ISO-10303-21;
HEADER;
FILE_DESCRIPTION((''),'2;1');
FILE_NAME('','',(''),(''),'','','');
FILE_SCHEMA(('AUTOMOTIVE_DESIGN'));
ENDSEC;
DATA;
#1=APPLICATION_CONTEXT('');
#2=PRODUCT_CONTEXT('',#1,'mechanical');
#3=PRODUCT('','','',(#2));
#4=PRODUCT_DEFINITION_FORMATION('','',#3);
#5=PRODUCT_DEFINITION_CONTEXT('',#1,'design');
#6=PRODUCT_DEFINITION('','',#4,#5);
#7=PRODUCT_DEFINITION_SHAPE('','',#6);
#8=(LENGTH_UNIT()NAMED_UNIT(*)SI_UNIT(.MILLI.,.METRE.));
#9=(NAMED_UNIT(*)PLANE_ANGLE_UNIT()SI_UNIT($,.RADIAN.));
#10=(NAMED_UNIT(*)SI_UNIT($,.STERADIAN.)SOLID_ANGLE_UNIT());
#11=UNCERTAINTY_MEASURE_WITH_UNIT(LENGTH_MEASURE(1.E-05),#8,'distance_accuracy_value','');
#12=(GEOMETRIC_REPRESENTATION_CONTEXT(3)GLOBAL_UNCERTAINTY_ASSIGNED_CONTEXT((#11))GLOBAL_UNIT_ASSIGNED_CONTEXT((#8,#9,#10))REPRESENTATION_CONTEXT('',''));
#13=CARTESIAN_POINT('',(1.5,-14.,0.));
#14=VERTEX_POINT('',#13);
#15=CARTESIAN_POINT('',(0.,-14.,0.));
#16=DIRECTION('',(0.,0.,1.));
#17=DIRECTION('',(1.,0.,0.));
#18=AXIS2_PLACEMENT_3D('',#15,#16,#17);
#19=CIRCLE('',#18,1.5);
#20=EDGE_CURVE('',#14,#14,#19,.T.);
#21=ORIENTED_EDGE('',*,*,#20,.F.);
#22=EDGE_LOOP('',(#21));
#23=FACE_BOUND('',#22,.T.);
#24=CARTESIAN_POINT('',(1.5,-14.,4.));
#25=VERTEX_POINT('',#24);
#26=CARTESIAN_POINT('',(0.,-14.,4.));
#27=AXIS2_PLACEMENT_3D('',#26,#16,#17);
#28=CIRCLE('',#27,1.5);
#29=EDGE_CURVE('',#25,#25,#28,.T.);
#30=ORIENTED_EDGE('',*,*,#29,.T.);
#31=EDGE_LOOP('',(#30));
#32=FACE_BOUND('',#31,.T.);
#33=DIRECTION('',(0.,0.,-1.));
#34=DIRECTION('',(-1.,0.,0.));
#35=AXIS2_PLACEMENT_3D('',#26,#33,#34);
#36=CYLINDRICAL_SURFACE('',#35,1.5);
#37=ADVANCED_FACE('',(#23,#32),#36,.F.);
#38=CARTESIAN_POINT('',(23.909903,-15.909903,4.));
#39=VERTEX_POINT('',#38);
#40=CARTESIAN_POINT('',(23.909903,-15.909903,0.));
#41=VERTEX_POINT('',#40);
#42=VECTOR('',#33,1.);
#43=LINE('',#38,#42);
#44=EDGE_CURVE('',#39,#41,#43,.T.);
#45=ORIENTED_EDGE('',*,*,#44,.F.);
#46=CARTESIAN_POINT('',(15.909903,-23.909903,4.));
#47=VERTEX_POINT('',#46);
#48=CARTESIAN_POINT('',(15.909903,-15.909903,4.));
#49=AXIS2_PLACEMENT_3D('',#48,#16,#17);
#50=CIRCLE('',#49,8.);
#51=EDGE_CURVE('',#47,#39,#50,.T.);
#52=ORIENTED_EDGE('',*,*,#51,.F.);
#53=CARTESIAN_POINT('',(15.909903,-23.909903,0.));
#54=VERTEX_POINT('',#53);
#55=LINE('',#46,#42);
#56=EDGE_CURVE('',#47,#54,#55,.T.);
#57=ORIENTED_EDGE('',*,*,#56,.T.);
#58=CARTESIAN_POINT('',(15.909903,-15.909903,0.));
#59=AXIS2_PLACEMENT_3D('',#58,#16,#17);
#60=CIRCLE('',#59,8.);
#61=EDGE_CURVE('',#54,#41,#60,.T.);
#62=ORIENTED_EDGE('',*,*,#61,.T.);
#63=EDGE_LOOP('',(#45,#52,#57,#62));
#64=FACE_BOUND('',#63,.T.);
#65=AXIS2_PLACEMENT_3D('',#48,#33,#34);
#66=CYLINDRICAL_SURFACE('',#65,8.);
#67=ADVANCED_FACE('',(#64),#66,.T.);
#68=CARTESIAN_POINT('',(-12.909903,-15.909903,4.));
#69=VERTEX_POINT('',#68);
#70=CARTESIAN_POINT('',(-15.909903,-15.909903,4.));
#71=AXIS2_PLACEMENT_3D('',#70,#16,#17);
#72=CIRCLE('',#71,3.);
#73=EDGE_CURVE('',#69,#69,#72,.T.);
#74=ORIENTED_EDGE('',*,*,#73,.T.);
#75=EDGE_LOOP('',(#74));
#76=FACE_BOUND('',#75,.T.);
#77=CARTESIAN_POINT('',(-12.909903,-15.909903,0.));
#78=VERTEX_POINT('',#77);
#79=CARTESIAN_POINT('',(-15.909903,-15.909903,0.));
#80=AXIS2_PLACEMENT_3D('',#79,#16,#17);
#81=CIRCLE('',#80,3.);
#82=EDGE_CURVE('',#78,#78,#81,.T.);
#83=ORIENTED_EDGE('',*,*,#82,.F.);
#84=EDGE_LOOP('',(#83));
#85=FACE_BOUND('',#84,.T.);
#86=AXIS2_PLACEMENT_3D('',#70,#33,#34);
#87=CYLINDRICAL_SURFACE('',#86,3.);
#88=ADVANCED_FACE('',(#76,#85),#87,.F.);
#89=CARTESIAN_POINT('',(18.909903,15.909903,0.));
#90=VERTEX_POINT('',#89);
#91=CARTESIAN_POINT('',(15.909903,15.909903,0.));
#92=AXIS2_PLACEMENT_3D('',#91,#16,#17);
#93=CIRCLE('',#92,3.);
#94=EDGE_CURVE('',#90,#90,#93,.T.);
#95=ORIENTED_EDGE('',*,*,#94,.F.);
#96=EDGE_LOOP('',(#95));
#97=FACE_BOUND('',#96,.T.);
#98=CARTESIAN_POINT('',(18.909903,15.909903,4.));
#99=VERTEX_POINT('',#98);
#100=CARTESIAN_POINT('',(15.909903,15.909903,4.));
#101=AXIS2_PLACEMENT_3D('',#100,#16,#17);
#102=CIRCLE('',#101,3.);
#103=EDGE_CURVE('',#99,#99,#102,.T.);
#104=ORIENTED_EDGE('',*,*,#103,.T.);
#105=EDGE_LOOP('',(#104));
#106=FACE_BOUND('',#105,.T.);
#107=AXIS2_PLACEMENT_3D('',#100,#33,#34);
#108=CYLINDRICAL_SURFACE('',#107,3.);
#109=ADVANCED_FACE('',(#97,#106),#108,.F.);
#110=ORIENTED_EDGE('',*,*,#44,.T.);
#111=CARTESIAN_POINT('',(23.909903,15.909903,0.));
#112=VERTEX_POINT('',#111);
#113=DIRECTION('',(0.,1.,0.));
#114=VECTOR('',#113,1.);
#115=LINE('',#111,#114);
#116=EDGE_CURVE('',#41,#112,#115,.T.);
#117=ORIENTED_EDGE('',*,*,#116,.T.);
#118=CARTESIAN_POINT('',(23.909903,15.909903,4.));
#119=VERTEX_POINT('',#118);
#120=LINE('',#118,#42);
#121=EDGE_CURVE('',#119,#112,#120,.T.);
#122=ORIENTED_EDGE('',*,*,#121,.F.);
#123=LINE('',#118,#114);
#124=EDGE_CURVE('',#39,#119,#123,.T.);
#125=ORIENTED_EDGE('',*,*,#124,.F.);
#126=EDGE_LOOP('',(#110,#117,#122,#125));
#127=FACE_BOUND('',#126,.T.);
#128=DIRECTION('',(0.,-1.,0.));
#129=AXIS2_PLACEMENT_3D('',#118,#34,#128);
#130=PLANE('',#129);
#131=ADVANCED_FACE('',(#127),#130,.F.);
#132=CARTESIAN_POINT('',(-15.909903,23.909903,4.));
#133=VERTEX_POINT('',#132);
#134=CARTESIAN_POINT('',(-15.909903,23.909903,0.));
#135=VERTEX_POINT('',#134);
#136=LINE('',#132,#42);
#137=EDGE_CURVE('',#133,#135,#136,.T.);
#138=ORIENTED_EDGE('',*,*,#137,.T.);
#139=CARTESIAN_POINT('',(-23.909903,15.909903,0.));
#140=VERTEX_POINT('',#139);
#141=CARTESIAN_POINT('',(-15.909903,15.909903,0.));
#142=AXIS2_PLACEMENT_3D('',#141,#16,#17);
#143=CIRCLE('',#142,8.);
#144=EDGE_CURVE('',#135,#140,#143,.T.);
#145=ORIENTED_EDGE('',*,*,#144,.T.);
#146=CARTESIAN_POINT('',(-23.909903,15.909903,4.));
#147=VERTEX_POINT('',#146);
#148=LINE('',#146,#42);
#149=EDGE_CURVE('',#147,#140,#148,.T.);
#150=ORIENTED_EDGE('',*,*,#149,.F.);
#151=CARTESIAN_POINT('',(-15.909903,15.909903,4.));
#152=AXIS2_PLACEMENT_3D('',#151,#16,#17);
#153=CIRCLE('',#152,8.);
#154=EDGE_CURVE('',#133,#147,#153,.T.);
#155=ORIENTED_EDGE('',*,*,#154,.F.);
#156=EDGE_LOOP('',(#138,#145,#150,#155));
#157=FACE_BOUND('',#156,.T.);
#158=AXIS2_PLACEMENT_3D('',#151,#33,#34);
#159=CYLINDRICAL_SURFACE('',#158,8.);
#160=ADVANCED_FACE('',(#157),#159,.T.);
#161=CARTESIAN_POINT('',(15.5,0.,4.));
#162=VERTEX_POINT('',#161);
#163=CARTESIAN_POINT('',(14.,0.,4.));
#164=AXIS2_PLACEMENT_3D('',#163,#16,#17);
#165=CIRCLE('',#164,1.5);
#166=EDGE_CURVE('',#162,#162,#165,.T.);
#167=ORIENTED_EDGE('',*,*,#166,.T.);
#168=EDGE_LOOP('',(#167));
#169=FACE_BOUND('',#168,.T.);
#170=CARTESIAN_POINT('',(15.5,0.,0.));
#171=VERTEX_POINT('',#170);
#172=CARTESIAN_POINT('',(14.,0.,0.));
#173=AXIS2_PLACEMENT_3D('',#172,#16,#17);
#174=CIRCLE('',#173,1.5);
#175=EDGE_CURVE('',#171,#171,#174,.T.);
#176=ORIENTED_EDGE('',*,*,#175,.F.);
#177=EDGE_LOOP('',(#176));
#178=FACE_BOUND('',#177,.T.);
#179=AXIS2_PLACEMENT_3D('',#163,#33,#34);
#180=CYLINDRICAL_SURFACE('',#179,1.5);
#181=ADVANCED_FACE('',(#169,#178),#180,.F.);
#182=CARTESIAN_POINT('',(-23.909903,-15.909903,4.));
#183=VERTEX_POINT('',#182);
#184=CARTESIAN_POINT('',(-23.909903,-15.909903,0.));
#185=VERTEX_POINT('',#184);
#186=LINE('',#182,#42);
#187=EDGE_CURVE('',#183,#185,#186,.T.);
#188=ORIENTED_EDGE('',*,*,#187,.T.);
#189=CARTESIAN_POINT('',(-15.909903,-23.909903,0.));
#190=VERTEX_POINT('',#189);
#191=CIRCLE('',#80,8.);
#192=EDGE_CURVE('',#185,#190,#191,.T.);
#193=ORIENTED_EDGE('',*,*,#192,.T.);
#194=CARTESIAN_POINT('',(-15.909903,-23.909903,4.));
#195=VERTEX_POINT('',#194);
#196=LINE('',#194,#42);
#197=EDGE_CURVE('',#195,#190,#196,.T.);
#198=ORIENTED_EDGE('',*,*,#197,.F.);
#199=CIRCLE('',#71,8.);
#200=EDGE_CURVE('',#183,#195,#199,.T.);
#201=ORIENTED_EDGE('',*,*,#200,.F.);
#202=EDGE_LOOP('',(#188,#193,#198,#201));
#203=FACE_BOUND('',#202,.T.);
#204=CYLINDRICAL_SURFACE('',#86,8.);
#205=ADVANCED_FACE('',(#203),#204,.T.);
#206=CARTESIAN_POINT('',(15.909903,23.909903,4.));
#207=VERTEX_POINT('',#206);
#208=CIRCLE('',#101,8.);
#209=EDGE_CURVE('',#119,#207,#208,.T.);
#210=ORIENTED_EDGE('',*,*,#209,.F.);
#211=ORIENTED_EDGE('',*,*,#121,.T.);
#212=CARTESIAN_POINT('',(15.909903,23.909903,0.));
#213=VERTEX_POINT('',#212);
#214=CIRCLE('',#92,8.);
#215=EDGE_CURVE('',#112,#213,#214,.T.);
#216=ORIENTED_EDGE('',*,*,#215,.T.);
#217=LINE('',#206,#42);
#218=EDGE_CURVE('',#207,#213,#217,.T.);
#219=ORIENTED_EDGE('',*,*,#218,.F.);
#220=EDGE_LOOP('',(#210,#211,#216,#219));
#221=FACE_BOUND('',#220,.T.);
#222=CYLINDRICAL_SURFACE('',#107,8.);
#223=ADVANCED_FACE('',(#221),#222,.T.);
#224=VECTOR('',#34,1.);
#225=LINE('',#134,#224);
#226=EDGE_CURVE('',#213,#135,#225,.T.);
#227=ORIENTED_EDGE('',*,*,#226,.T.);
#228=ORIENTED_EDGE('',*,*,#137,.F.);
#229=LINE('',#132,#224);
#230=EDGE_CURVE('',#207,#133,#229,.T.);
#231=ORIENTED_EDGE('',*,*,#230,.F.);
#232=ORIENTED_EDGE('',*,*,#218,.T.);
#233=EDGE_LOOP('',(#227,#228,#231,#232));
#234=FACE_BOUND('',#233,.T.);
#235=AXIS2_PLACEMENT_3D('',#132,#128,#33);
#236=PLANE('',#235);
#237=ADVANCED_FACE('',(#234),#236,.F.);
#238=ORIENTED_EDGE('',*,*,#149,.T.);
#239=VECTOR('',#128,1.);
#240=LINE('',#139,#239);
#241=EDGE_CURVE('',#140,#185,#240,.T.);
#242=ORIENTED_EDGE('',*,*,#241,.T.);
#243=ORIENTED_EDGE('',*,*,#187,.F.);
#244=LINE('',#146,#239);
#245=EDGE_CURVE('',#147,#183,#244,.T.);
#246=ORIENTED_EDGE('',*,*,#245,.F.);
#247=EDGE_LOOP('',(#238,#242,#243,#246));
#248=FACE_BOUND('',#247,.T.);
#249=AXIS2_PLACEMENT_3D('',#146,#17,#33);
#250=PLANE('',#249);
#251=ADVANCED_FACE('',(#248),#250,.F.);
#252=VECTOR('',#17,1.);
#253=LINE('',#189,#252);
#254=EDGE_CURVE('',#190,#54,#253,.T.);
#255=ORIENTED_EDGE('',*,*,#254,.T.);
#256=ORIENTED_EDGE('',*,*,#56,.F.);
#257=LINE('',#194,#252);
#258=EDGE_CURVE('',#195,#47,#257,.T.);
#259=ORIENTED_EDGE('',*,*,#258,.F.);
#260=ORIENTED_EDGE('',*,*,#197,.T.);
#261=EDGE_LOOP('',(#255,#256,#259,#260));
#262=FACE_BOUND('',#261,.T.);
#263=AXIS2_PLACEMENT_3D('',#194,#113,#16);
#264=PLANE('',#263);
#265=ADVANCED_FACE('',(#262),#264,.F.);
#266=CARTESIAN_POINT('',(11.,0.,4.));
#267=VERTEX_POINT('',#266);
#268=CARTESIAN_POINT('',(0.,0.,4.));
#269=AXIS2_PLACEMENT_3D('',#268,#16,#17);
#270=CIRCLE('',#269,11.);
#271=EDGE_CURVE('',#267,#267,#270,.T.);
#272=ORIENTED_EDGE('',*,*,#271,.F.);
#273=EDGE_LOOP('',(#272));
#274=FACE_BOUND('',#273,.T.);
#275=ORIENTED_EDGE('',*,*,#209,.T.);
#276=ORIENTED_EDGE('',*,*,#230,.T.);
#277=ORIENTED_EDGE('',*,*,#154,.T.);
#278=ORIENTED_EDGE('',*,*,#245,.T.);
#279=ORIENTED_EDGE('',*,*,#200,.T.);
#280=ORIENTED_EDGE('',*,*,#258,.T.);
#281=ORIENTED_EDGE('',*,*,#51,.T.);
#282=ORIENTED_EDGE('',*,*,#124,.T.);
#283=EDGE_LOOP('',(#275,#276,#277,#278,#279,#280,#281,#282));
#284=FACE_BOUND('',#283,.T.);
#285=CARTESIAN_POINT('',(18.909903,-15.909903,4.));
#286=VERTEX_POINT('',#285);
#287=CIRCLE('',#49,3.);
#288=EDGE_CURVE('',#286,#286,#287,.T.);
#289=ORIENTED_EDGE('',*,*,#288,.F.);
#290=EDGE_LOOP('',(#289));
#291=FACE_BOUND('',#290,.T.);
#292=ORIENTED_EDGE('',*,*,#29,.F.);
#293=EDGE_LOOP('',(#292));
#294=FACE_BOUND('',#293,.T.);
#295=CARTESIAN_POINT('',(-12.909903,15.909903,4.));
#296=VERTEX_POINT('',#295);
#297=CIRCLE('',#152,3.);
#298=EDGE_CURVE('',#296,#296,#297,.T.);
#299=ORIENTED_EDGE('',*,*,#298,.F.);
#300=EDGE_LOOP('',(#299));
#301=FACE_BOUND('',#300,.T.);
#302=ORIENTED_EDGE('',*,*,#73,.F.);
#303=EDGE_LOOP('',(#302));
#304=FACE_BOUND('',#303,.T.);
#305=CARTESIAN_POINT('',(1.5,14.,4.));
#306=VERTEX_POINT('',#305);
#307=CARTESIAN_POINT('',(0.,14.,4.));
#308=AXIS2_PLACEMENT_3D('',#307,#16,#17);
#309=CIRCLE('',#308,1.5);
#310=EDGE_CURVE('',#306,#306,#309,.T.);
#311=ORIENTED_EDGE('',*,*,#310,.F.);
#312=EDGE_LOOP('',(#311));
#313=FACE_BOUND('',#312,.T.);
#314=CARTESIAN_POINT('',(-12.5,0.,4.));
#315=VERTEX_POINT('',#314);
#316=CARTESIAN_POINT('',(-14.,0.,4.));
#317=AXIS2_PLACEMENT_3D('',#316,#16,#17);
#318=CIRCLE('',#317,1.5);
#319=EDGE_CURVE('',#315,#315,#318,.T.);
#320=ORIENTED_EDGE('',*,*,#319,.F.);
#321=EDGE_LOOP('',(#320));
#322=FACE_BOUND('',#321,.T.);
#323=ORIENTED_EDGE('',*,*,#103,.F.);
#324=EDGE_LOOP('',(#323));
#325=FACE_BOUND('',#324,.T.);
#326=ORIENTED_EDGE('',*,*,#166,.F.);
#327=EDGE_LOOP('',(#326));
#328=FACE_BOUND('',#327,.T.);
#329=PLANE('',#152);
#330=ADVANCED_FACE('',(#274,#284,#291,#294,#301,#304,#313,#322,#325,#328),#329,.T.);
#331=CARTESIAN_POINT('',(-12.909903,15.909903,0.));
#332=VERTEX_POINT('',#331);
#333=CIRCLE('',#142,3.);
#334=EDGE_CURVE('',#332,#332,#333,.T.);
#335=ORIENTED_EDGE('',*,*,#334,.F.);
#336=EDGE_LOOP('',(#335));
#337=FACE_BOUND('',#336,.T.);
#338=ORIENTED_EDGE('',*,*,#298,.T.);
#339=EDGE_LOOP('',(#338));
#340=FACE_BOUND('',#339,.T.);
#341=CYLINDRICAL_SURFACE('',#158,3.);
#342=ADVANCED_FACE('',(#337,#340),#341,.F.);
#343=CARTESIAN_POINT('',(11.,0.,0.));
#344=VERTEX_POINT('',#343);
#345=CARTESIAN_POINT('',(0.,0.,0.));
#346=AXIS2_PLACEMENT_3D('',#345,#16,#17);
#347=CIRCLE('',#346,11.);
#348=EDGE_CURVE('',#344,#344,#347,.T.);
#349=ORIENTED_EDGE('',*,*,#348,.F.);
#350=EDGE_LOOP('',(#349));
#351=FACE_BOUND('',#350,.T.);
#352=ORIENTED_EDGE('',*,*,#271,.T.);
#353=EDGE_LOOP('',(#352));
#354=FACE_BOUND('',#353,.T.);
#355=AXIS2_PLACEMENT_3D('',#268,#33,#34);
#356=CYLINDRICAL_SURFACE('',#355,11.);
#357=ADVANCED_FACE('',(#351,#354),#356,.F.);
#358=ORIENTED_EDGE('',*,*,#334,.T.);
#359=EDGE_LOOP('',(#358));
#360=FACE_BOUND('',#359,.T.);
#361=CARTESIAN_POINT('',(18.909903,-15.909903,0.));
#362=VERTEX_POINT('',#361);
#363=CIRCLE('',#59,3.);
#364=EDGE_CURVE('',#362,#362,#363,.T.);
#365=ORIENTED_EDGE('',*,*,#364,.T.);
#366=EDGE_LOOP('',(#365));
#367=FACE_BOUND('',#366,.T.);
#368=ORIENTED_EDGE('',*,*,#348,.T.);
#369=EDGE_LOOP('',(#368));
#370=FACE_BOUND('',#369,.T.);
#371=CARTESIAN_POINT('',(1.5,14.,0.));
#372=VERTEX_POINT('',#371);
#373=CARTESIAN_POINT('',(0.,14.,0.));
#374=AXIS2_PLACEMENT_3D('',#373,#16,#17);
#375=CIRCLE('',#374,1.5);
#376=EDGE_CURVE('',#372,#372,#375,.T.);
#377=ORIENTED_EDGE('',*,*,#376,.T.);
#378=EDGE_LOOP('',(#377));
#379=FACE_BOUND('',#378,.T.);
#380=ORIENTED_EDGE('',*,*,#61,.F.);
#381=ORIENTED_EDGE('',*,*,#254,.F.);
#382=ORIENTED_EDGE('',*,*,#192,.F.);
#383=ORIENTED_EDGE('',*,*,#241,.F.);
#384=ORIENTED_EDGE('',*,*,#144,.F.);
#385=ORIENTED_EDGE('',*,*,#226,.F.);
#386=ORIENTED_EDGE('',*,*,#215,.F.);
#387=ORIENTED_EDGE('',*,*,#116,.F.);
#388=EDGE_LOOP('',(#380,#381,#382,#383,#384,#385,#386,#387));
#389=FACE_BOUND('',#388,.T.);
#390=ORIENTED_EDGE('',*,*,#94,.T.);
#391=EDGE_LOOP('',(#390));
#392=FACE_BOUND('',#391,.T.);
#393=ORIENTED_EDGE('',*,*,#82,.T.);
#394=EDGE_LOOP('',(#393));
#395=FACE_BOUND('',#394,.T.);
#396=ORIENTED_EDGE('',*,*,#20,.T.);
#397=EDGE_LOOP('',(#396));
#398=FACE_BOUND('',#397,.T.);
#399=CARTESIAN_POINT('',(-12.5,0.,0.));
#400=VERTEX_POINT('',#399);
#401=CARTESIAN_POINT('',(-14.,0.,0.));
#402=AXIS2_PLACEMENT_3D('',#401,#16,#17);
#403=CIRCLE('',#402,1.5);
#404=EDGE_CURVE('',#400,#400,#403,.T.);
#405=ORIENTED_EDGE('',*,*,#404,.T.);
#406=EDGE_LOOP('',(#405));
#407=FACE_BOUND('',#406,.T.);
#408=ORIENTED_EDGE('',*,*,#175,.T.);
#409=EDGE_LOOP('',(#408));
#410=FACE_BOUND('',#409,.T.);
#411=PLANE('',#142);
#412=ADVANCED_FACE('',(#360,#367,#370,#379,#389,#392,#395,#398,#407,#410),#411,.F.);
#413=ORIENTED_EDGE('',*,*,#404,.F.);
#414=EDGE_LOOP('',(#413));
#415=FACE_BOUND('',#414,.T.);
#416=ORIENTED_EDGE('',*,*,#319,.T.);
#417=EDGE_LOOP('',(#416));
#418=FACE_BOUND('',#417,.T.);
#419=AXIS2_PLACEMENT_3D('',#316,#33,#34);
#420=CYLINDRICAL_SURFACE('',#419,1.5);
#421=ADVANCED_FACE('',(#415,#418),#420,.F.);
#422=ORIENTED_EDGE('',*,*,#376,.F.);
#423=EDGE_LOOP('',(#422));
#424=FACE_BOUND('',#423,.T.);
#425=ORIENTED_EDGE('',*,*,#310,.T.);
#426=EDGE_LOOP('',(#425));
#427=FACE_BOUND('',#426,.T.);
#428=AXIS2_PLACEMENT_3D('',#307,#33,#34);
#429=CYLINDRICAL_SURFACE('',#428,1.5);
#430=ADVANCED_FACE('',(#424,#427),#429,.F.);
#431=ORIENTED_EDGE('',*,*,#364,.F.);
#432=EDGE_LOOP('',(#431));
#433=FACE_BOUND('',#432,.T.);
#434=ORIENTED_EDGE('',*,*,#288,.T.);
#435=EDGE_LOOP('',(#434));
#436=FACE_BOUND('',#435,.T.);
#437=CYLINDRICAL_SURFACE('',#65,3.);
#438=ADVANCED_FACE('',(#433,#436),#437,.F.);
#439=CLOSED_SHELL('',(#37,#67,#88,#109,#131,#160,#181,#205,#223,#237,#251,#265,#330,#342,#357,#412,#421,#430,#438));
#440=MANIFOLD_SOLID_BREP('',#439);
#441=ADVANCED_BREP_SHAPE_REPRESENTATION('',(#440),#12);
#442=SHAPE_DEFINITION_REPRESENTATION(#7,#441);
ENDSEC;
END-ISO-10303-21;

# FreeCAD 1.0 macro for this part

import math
import FreeCAD as App
import Part
import Sketcher
from FreeCAD import Vector

doc = App.newDocument("Part")
body = doc.addObject("PartDesign::Body", "Body")

# Sketch on XY plane
sketch1 = body.newObject("Sketcher::SketchObject", "Sketch")
sketch1.AttachmentSupport = (doc.getObject("XY_Plane"), [""])
sketch1.MapMode = "FlatFace"
sketch1.addGeometry(Part.LineSegment(Vector(15.9, 23.9, 0), Vector(-15.9, 23.9, 0)), False)
sketch1.addGeometry(Part.ArcOfCircle(Part.Circle(Vector(-15.9, 15.9, 0), Vector(0, 0, 1), 8), math.radians(90), math.radians(180)), False)
sketch1.addGeometry(Part.LineSegment(Vector(-23.9, 15.9, 0), Vector(-23.9, -15.9, 0)), False)
sketch1.addGeometry(Part.ArcOfCircle(Part.Circle(Vector(-15.9, -15.9, 0), Vector(0, 0, 1), 8), math.radians(-180), math.radians(-90)), False)
sketch1.addGeometry(Part.LineSegment(Vector(-15.9, -23.9, 0), Vector(15.9, -23.9, 0)), False)
sketch1.addGeometry(Part.ArcOfCircle(Part.Circle(Vector(15.9, -15.9, 0), Vector(0, 0, 1), 8), math.radians(-90), math.radians(0)), False)
sketch1.addGeometry(Part.LineSegment(Vector(23.9, -15.9, 0), Vector(23.9, 15.9, 0)), False)
sketch1.addGeometry(Part.ArcOfCircle(Part.Circle(Vector(15.9, 15.9, 0), Vector(0, 0, 1), 8), math.radians(0), math.radians(90)), False)
sketch1.addGeometry(Part.Circle(Vector(15.9, -15.9, 0), Vector(0, 0, 1), 3), False)
sketch1.addGeometry(Part.Circle(Vector(0, -14, 0), Vector(0, 0, 1), 1.5), False)
sketch1.addGeometry(Part.Circle(Vector(-15.9, -15.9, 0), Vector(0, 0, 1), 3), False)
sketch1.addGeometry(Part.Circle(Vector(14, 0, 0), Vector(0, 0, 1), 1.5), False)
sketch1.addGeometry(Part.Circle(Vector(15.9, 15.9, 0), Vector(0, 0, 1), 3), False)
sketch1.addGeometry(Part.Circle(Vector(0, 0, 0), Vector(0, 0, 1), 11), False)
sketch1.addGeometry(Part.Circle(Vector(-14, 0, 0), Vector(0, 0, 1), 1.5), False)
sketch1.addGeometry(Part.Circle(Vector(0, 14, 0), Vector(0, 0, 1), 1.5), False)
sketch1.addGeometry(Part.Circle(Vector(-15.9, 15.9, 0), Vector(0, 0, 1), 3), False)
sketch1.addConstraint(Sketcher.Constraint("Tangent", 0, 2, 1, 1))
sketch1.addConstraint(Sketcher.Constraint("Tangent", 1, 2, 2, 1))
sketch1.addConstraint(Sketcher.Constraint("Tangent", 2, 2, 3, 1))
sketch1.addConstraint(Sketcher.Constraint("Tangent", 3, 2, 4, 1))
sketch1.addConstraint(Sketcher.Constraint("Tangent", 4, 2, 5, 1))
sketch1.addConstraint(Sketcher.Constraint("Tangent", 5, 2, 6, 1))
sketch1.addConstraint(Sketcher.Constraint("Tangent", 6, 2, 7, 1))
sketch1.addConstraint(Sketcher.Constraint("Tangent", 7, 2, 0, 1))
sketch1.addConstraint(Sketcher.Constraint("Horizontal", 0))
sketch1.addConstraint(Sketcher.Constraint("Vertical", 2))
sketch1.addConstraint(Sketcher.Constraint("Horizontal", 4))
sketch1.addConstraint(Sketcher.Constraint("Vertical", 6))
sketch1.addConstraint(Sketcher.Constraint("Coincident", 13, 3, -1, 1))
sketch1.addConstraint(Sketcher.Constraint("Coincident", 8, 3, 5, 3))
sketch1.addConstraint(Sketcher.Constraint("Coincident", 10, 3, 3, 3))
sketch1.addConstraint(Sketcher.Constraint("Coincident", 12, 3, 7, 3))
sketch1.addConstraint(Sketcher.Constraint("Coincident", 16, 3, 1, 3))
sketch1.addConstraint(Sketcher.Constraint("Equal", 1, 3))
sketch1.addConstraint(Sketcher.Constraint("Equal", 3, 5))
sketch1.addConstraint(Sketcher.Constraint("Equal", 5, 7))
sketch1.addConstraint(Sketcher.Constraint("Equal", 8, 10))
sketch1.addConstraint(Sketcher.Constraint("Equal", 9, 11))
sketch1.addConstraint(Sketcher.Constraint("Equal", 10, 12))
sketch1.addConstraint(Sketcher.Constraint("Equal", 11, 14))
sketch1.addConstraint(Sketcher.Constraint("Equal", 14, 15))
sketch1.addConstraint(Sketcher.Constraint("Equal", 12, 16))
sketch1.addConstraint(Sketcher.Constraint("Symmetric", 1, 3, 5, 3, -1, 1))
sketch1.addConstraint(Sketcher.Constraint("Symmetric", 11, 3, 14, 3, -1, 1))
sketch1.addConstraint(Sketcher.Constraint("Symmetric", 9, 3, 15, 3, -1, 1))
sketch1.addConstraint(Sketcher.Constraint("PointOnObject", 9, 3, -2))
sketch1.addConstraint(Sketcher.Constraint("PointOnObject", 11, 3, -1))
sketch1.addConstraint(Sketcher.Constraint("Equal", 4, 2))
sketch1.addConstraint(Sketcher.Constraint("Diameter", 8, 6.0))
sketch1.addConstraint(Sketcher.Constraint("Diameter", 9, 3.0))
sketch1.addConstraint(Sketcher.Constraint("Diameter", 13, 22.0))
sketch1.addConstraint(Sketcher.Constraint("Radius", 1, 8.0))
sketch1.addConstraint(Sketcher.Constraint("DistanceY", 9, 3, -1, 1, 14.0))
sketch1.addConstraint(Sketcher.Constraint("DistanceX", -1, 1, 11, 3, 14.0))
sketch1.addConstraint(Sketcher.Constraint("DistanceX", 0, 2, 0, 1, 31.819805))
pad1 = body.newObject("PartDesign::Pad", "Pad")
pad1.Profile = sketch1
pad1.Length = 4

doc.recompute()
